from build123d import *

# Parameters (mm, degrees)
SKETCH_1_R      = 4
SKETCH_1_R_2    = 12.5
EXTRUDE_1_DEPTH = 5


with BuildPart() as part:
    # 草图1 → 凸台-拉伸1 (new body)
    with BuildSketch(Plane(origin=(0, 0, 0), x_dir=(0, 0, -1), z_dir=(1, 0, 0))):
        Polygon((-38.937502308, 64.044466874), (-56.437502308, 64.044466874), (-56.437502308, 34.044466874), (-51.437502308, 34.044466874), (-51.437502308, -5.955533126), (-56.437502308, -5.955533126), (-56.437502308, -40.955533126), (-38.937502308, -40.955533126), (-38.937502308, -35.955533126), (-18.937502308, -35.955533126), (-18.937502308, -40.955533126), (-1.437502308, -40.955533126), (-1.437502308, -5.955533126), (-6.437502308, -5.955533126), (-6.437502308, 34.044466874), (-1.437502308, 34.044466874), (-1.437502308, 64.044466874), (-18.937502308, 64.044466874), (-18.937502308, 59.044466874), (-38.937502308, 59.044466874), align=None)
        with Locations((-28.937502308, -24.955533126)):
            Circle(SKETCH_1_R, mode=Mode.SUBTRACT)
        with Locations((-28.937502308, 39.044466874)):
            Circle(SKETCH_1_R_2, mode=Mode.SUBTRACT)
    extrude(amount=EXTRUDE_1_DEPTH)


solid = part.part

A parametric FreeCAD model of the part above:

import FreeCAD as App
import Part
import Sketcher
from FreeCAD import Vector

doc = App.newDocument("Part")
params = doc.addObject("Spreadsheet::Sheet", "Params")
for row, (alias, value) in enumerate([
    ("sketch1_diameter", "8 mm"),
    ("sketch1_diameter2", "25 mm"),
    ("sketch1_width", "30 mm"),
    ("sketch1_width2", "40 mm"),
    ("sketch1_width3", "35 mm"),
    ("pad1_length", "5 mm"),
], start=1):
    params.set(f"A{row}", alias)
    params.set(f"B{row}", "=" + value)
    params.setAlias(f"B{row}", alias)

body = doc.addObject("PartDesign::Body", "Body")

# Sketch on YZ plane
sketch1 = doc.addObject("Sketcher::SketchObject", "Sketch")
body.addObject(sketch1)
sketch1.AttachmentSupport = (doc.YZ_Plane, [""])
sketch1.MapMode = "FlatFace"
sketch1.addGeometry([
    Part.LineSegment(Vector(64.044467, 38.937502, 0), Vector(64.044467, 56.437502, 0)),  # 0
    Part.LineSegment(Vector(64.044467, 56.437502, 0), Vector(34.044467, 56.437502, 0)),  # 1
    Part.LineSegment(Vector(34.044467, 56.437502, 0), Vector(34.044467, 51.437502, 0)),  # 2
    Part.LineSegment(Vector(34.044467, 51.437502, 0), Vector(-5.955533, 51.437502, 0)),  # 3
    Part.LineSegment(Vector(-5.955533, 51.437502, 0), Vector(-5.955533, 56.437502, 0)),  # 4
    Part.LineSegment(Vector(-5.955533, 56.437502, 0), Vector(-40.955533, 56.437502, 0)),  # 5
    Part.LineSegment(Vector(-40.955533, 56.437502, 0), Vector(-40.955533, 38.937502, 0)),  # 6
    Part.LineSegment(Vector(-40.955533, 38.937502, 0), Vector(-35.955533, 38.937502, 0)),  # 7
    Part.LineSegment(Vector(-35.955533, 38.937502, 0), Vector(-35.955533, 18.937502, 0)),  # 8
    Part.LineSegment(Vector(-35.955533, 18.937502, 0), Vector(-40.955533, 18.937502, 0)),  # 9
    Part.LineSegment(Vector(-40.955533, 18.937502, 0), Vector(-40.955533, 1.437502, 0)),  # 10
    Part.LineSegment(Vector(-40.955533, 1.437502, 0), Vector(-5.955533, 1.437502, 0)),  # 11
    Part.LineSegment(Vector(-5.955533, 1.437502, 0), Vector(-5.955533, 6.437502, 0)),  # 12
    Part.LineSegment(Vector(-5.955533, 6.437502, 0), Vector(34.044467, 6.437502, 0)),  # 13
    Part.LineSegment(Vector(34.044467, 6.437502, 0), Vector(34.044467, 1.437502, 0)),  # 14
    Part.LineSegment(Vector(34.044467, 1.437502, 0), Vector(64.044467, 1.437502, 0)),  # 15
    Part.LineSegment(Vector(64.044467, 1.437502, 0), Vector(64.044467, 18.937502, 0)),  # 16
    Part.LineSegment(Vector(64.044467, 18.937502, 0), Vector(59.044467, 18.937502, 0)),  # 17
    Part.LineSegment(Vector(59.044467, 18.937502, 0), Vector(59.044467, 38.937502, 0)),  # 18
    Part.LineSegment(Vector(59.044467, 38.937502, 0), Vector(64.044467, 38.937502, 0)),  # 19
    Part.Circle(Vector(-24.955533, 28.937502, 0), Vector(0, 0, 1), 4),  # 20
    Part.Circle(Vector(39.044467, 28.937502, 0), Vector(0, 0, 1), 12.5),  # 21
], False)
sketch1.addConstraint([
    Sketcher.Constraint("Coincident", 0, 2, 1, 1),
    Sketcher.Constraint("Coincident", 1, 2, 2, 1),
    Sketcher.Constraint("Coincident", 2, 2, 3, 1),
    Sketcher.Constraint("Coincident", 3, 2, 4, 1),
    Sketcher.Constraint("Coincident", 4, 2, 5, 1),
    Sketcher.Constraint("Coincident", 5, 2, 6, 1),
    Sketcher.Constraint("Coincident", 6, 2, 7, 1),
    Sketcher.Constraint("Coincident", 7, 2, 8, 1),
    Sketcher.Constraint("Coincident", 8, 2, 9, 1),
    Sketcher.Constraint("Coincident", 9, 2, 10, 1),
    Sketcher.Constraint("Coincident", 10, 2, 11, 1),
    Sketcher.Constraint("Coincident", 11, 2, 12, 1),
    Sketcher.Constraint("Coincident", 12, 2, 13, 1),
    Sketcher.Constraint("Coincident", 13, 2, 14, 1),
    Sketcher.Constraint("Coincident", 14, 2, 15, 1),
    Sketcher.Constraint("Coincident", 15, 2, 16, 1),
    Sketcher.Constraint("Coincident", 16, 2, 17, 1),
    Sketcher.Constraint("Coincident", 17, 2, 18, 1),
    Sketcher.Constraint("Coincident", 18, 2, 19, 1),
    Sketcher.Constraint("Coincident", 19, 2, 0, 1),
    Sketcher.Constraint("Vertical", 0),
    Sketcher.Constraint("Horizontal", 1),
    Sketcher.Constraint("Vertical", 2),
    Sketcher.Constraint("Horizontal", 3),
    Sketcher.Constraint("Vertical", 4),
    Sketcher.Constraint("Horizontal", 5),
    Sketcher.Constraint("Vertical", 6),
    Sketcher.Constraint("Horizontal", 7),
    Sketcher.Constraint("Vertical", 8),
    Sketcher.Constraint("Horizontal", 9),
    Sketcher.Constraint("Vertical", 10),
    Sketcher.Constraint("Horizontal", 11),
    Sketcher.Constraint("Vertical", 12),
    Sketcher.Constraint("Horizontal", 13),
    Sketcher.Constraint("Vertical", 14),
    Sketcher.Constraint("Horizontal", 15),
    Sketcher.Constraint("Vertical", 16),
    Sketcher.Constraint("Horizontal", 17),
    Sketcher.Constraint("Vertical", 18),
    Sketcher.Constraint("Horizontal", 19),
    Sketcher.Constraint("Horizontal", 20, 3, 21, 3),
    Sketcher.Constraint("Horizontal", 1, 2, 4, 2),
    Sketcher.Constraint("Horizontal", 11, 2, 14, 2),
    Sketcher.Constraint("Horizontal", 9, 2, 16, 2),
    Sketcher.Constraint("Horizontal", 7, 2, 18, 2),
    Sketcher.Constraint("Vertical", 6, 2, 9, 2),
    Sketcher.Constraint("Vertical", 4, 2, 11, 2),
    Sketcher.Constraint("Vertical", 2, 2, 13, 2),
    Sketcher.Constraint("Vertical", 0, 2, 15, 2),
    Sketcher.Constraint("Equal", 9, 17),
    Sketcher.Constraint("Equal", 19, 2),
    Sketcher.Constraint("Equal", 6, 10),
    Sketcher.Constraint("Equal", 4, 12),
    Sketcher.Constraint("Diameter", 20, 8.0),
    Sketcher.Constraint("Diameter", 21, 25.0),
    Sketcher.Constraint("DistanceX", 1, 2, 1, 1, 30.0),
    Sketcher.Constraint("DistanceX", 3, 2, 3, 1, 40.0),
    Sketcher.Constraint("DistanceX", 5, 2, 5, 1, 35.0),
    Sketcher.Constraint("DistanceX", 7, 1, 7, 2, 5.0),
    Sketcher.Constraint("DistanceY", 8, 2, 8, 1, 20.0),
    Sketcher.Constraint("DistanceY", 0, 1, 0, 2, 17.5),
    Sketcher.Constraint("DistanceX", 20, 3, 21, 3, 64.0),
    Sketcher.Constraint("DistanceX", 21, 3, 0, 2, 25.0),
    Sketcher.Constraint("DistanceY", 20, 3, 6, 2, 10.0),
    Sketcher.Constraint("DistanceX", 20, 3, -1, 1, 24.955533),
    Sketcher.Constraint("DistanceY", -1, 1, 20, 3, 28.937502),
])
sketch1.setExpression("Constraints[53]", "Params.sketch1_diameter")
sketch1.setExpression("Constraints[54]", "Params.sketch1_diameter2")
sketch1.setExpression("Constraints[55]", "Params.sketch1_width")
sketch1.setExpression("Constraints[56]", "Params.sketch1_width2")
sketch1.setExpression("Constraints[57]", "Params.sketch1_width3")
pad1 = doc.addObject("PartDesign::Pad", "Pad")
body.addObject(pad1)
pad1.Profile = sketch1
pad1.setExpression("Length", "Params.pad1_length")

doc.recompute()
